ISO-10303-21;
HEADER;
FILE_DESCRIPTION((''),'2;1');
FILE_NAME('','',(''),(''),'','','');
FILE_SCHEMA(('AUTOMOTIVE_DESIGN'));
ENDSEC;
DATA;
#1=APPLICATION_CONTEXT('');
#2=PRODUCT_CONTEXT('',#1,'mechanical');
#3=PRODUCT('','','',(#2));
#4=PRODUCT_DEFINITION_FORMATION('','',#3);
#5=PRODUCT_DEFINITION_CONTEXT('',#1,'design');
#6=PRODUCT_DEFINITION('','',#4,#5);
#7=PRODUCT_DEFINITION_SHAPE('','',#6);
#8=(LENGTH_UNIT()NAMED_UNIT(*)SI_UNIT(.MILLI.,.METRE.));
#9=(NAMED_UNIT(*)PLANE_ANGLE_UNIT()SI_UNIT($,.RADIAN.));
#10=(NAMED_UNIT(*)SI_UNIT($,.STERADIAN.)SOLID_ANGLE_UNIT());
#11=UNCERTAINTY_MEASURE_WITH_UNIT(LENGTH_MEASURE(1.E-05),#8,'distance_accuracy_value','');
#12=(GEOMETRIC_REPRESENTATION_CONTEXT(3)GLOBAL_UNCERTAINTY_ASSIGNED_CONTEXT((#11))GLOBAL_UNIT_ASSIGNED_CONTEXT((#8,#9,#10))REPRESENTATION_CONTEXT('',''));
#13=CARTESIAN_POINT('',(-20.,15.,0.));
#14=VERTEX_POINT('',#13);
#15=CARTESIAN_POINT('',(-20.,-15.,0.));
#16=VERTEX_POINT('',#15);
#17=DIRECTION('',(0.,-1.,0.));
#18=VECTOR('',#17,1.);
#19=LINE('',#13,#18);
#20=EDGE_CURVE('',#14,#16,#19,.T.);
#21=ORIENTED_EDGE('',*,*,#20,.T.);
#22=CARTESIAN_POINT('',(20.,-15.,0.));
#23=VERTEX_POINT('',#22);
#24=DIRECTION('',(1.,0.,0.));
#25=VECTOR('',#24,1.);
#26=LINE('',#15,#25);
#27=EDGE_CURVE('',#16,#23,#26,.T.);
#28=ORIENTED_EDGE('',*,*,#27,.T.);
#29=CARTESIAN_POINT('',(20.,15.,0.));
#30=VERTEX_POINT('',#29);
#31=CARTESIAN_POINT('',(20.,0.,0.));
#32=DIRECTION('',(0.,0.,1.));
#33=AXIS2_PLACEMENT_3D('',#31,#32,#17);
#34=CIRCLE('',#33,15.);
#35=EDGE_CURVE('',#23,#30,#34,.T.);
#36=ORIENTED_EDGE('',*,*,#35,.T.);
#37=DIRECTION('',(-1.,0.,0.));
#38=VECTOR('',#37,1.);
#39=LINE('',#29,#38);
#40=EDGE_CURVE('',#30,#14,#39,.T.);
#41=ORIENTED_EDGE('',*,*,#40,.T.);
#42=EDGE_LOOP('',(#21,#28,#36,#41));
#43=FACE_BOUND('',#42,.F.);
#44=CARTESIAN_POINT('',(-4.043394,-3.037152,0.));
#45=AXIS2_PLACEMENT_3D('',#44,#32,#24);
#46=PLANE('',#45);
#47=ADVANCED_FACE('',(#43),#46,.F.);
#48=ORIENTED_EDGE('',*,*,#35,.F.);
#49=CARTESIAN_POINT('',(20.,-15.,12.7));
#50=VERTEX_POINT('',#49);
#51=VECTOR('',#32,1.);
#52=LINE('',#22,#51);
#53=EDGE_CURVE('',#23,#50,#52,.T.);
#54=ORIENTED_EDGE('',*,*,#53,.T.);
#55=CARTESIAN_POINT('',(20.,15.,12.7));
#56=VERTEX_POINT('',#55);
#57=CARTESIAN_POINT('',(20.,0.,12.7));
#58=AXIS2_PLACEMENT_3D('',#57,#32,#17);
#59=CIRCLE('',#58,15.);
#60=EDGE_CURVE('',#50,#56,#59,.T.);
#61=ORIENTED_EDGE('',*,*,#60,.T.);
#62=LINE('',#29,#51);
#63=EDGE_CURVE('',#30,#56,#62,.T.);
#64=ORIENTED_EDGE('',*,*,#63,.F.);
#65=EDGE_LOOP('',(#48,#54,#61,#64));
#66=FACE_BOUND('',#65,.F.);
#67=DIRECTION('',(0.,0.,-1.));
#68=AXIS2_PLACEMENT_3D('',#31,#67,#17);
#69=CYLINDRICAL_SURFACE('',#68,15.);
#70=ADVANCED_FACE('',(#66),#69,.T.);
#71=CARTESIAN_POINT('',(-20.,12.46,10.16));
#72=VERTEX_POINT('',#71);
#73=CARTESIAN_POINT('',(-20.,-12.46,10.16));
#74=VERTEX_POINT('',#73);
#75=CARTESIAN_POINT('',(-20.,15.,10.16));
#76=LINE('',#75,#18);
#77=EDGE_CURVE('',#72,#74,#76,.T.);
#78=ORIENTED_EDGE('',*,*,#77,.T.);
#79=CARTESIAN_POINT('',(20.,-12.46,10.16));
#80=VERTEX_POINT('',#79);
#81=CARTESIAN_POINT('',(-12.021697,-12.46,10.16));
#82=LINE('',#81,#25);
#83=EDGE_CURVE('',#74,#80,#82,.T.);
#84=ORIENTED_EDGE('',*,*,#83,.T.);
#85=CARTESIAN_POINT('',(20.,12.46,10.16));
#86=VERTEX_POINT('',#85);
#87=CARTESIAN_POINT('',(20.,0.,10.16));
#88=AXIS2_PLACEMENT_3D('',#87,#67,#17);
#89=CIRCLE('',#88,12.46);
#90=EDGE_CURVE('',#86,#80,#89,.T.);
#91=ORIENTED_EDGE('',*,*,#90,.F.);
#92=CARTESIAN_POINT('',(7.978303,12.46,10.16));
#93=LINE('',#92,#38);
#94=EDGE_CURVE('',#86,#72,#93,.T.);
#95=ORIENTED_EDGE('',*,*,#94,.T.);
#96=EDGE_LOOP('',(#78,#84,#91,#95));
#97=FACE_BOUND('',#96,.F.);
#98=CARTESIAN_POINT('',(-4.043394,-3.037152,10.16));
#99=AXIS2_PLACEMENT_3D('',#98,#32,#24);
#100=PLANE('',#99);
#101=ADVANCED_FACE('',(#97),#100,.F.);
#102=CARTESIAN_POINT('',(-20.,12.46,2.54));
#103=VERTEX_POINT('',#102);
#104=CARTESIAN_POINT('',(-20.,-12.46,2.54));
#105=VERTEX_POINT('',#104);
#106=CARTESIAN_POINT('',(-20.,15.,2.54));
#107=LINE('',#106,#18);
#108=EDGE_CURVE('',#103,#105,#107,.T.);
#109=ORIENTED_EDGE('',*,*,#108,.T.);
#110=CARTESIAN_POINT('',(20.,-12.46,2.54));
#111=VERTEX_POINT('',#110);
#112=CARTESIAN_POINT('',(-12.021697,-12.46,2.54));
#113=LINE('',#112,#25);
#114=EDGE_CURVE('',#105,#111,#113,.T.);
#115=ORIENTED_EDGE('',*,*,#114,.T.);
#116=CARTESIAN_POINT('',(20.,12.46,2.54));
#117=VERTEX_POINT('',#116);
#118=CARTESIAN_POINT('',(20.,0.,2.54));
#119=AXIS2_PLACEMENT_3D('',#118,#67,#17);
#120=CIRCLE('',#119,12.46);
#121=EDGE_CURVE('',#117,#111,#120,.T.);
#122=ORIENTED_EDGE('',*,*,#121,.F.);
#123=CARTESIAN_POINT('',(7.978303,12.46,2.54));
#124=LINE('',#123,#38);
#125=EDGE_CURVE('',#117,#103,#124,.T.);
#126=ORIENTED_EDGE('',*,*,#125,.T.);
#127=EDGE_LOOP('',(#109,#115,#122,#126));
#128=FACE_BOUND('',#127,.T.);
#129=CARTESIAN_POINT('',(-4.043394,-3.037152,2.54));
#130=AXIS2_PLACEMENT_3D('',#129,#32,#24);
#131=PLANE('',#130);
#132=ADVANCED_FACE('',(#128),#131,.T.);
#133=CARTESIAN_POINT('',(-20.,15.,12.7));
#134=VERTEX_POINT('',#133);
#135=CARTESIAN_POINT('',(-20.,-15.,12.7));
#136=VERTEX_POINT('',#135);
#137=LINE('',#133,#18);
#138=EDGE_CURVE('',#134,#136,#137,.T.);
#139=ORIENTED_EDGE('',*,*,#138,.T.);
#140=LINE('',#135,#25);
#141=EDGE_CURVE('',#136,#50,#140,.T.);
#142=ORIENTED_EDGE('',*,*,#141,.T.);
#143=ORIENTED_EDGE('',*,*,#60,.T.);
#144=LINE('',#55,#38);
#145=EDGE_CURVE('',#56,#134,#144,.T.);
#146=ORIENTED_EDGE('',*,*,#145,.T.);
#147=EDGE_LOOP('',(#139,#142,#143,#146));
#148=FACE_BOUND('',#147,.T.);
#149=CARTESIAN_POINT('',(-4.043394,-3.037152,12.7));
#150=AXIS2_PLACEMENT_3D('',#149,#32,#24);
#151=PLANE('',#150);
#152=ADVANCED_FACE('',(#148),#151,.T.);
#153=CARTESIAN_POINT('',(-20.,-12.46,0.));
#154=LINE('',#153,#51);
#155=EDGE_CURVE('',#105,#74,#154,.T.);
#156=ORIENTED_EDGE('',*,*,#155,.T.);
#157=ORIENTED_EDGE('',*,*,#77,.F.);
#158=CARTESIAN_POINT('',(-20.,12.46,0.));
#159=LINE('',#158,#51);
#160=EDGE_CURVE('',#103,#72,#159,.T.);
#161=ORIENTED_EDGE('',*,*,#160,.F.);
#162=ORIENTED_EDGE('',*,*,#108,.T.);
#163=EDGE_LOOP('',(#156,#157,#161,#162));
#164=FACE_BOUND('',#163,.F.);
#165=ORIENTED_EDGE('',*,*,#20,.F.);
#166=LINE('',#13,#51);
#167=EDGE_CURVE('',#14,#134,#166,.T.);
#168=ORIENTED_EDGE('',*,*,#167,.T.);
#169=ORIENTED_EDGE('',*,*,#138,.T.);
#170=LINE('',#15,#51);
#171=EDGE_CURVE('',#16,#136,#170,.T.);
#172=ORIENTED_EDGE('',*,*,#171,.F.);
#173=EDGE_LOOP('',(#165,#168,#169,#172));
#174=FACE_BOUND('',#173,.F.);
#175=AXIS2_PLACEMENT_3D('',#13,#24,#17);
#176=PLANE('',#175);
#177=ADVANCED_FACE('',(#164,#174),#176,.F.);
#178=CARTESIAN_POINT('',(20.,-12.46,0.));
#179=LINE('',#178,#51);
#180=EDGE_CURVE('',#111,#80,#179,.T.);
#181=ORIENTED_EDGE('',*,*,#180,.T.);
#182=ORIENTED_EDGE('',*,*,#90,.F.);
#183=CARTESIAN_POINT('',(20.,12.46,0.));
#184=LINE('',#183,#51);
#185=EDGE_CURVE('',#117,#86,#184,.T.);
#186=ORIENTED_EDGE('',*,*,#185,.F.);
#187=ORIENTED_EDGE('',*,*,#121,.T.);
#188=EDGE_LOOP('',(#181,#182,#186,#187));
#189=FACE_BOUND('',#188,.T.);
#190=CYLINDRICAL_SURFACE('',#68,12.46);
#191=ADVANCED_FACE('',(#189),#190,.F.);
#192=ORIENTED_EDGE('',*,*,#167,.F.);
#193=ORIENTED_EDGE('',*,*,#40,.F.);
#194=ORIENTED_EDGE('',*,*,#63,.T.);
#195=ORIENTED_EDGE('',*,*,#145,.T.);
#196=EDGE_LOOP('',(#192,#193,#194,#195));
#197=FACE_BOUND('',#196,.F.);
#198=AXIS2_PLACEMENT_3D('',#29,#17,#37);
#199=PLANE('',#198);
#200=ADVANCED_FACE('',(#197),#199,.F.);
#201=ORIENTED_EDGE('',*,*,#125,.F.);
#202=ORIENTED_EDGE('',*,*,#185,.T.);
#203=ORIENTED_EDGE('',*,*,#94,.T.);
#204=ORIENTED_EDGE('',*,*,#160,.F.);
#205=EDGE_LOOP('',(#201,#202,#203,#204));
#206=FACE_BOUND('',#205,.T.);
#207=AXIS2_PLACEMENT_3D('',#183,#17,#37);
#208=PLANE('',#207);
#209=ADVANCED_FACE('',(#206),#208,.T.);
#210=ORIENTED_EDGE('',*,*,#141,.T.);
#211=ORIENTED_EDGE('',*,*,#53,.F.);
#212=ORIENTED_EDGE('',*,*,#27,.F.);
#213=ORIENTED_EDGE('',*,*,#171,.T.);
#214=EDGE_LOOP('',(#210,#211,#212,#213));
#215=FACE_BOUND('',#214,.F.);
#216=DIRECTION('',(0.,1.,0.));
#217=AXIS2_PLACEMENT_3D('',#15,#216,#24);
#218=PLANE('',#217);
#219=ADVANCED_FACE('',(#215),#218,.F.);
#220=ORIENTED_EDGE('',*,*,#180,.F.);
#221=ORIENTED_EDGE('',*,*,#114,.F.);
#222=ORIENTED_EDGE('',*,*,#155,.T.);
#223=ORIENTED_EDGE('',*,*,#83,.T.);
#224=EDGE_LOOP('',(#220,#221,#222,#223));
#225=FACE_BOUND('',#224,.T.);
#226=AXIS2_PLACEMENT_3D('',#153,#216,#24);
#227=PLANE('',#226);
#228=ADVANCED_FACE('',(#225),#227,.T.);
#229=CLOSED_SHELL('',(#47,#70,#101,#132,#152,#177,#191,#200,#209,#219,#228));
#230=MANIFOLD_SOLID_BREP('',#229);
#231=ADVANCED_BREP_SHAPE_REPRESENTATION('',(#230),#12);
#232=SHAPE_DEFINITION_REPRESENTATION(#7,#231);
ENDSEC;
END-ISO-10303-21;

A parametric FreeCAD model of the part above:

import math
import FreeCAD as App
import Part
import Sketcher
Q = App.Units.Quantity


def faces_at(feature, points):
    """Names of the faces that lie closest to the given points."""
    faces = feature.Shape.Faces
    near = lambda p: min(range(len(faces)), key=lambda i: faces[i].distToShape(Part.Vertex(*p))[0])
    return sorted({f"Face{near(p) + 1}" for p in points})

doc = App.newDocument("Part")
body = doc.addObject("PartDesign::Body", "Body")

sketch1 = doc.addObject("Sketcher::SketchObject", "Sketch")
body.addObject(sketch1)
sketch1.AttachmentSupport = (doc.XY_Plane, [""])
sketch1.MapMode = "FlatFace"
sketch1.addGeometry(Part.LineSegment(App.Vector(-20, -15, 0), App.Vector(20, -15, 0)), False)
sketch1.addGeometry(Part.ArcOfCircle(Part.Circle(App.Vector(20, 0, 0), App.Vector(0, 0, 1), 15), math.radians(-90), math.radians(90)), False)
sketch1.addGeometry(Part.LineSegment(App.Vector(20, 15, 0), App.Vector(-20, 15, 0)), False)
sketch1.addGeometry(Part.LineSegment(App.Vector(-20, 15, 0), App.Vector(-20, -15, 0)), False)
sketch1.addConstraint(Sketcher.Constraint("Tangent", 0, 2, 1, 1))
sketch1.addConstraint(Sketcher.Constraint("Tangent", 1, 2, 2, 1))
sketch1.addConstraint(Sketcher.Constraint("Coincident", 2, 2, 3, 1))
sketch1.addConstraint(Sketcher.Constraint("Coincident", 3, 2, 0, 1))
sketch1.addConstraint(Sketcher.Constraint("Horizontal", 0))
sketch1.addConstraint(Sketcher.Constraint("Horizontal", 2))
sketch1.addConstraint(Sketcher.Constraint("Vertical", 3))
sketch1.addConstraint(Sketcher.Constraint("Symmetric", 0, 2, 2, 2, -1, 1))
sketch1.addConstraint(Sketcher.Constraint("Radius", 1, Q("15 mm")))
sketch1.addConstraint(Sketcher.Constraint("DistanceX", 0, 1, 0, 2, Q("40 mm")))
pad1 = doc.addObject("PartDesign::Pad", "Pad")
body.addObject(pad1)
pad1.Profile = sketch1
pad1.Length = 12.7
doc.recompute()

thickness = doc.addObject("PartDesign::Thickness", "Thickness")
body.addObject(thickness)
thickness.Base = (pad1, faces_at(pad1, [(-20, 0, 6.35)]))
thickness.Value = 2.54
thickness.Reversed = True
thickness.Join = "Arc"

doc.recompute()
